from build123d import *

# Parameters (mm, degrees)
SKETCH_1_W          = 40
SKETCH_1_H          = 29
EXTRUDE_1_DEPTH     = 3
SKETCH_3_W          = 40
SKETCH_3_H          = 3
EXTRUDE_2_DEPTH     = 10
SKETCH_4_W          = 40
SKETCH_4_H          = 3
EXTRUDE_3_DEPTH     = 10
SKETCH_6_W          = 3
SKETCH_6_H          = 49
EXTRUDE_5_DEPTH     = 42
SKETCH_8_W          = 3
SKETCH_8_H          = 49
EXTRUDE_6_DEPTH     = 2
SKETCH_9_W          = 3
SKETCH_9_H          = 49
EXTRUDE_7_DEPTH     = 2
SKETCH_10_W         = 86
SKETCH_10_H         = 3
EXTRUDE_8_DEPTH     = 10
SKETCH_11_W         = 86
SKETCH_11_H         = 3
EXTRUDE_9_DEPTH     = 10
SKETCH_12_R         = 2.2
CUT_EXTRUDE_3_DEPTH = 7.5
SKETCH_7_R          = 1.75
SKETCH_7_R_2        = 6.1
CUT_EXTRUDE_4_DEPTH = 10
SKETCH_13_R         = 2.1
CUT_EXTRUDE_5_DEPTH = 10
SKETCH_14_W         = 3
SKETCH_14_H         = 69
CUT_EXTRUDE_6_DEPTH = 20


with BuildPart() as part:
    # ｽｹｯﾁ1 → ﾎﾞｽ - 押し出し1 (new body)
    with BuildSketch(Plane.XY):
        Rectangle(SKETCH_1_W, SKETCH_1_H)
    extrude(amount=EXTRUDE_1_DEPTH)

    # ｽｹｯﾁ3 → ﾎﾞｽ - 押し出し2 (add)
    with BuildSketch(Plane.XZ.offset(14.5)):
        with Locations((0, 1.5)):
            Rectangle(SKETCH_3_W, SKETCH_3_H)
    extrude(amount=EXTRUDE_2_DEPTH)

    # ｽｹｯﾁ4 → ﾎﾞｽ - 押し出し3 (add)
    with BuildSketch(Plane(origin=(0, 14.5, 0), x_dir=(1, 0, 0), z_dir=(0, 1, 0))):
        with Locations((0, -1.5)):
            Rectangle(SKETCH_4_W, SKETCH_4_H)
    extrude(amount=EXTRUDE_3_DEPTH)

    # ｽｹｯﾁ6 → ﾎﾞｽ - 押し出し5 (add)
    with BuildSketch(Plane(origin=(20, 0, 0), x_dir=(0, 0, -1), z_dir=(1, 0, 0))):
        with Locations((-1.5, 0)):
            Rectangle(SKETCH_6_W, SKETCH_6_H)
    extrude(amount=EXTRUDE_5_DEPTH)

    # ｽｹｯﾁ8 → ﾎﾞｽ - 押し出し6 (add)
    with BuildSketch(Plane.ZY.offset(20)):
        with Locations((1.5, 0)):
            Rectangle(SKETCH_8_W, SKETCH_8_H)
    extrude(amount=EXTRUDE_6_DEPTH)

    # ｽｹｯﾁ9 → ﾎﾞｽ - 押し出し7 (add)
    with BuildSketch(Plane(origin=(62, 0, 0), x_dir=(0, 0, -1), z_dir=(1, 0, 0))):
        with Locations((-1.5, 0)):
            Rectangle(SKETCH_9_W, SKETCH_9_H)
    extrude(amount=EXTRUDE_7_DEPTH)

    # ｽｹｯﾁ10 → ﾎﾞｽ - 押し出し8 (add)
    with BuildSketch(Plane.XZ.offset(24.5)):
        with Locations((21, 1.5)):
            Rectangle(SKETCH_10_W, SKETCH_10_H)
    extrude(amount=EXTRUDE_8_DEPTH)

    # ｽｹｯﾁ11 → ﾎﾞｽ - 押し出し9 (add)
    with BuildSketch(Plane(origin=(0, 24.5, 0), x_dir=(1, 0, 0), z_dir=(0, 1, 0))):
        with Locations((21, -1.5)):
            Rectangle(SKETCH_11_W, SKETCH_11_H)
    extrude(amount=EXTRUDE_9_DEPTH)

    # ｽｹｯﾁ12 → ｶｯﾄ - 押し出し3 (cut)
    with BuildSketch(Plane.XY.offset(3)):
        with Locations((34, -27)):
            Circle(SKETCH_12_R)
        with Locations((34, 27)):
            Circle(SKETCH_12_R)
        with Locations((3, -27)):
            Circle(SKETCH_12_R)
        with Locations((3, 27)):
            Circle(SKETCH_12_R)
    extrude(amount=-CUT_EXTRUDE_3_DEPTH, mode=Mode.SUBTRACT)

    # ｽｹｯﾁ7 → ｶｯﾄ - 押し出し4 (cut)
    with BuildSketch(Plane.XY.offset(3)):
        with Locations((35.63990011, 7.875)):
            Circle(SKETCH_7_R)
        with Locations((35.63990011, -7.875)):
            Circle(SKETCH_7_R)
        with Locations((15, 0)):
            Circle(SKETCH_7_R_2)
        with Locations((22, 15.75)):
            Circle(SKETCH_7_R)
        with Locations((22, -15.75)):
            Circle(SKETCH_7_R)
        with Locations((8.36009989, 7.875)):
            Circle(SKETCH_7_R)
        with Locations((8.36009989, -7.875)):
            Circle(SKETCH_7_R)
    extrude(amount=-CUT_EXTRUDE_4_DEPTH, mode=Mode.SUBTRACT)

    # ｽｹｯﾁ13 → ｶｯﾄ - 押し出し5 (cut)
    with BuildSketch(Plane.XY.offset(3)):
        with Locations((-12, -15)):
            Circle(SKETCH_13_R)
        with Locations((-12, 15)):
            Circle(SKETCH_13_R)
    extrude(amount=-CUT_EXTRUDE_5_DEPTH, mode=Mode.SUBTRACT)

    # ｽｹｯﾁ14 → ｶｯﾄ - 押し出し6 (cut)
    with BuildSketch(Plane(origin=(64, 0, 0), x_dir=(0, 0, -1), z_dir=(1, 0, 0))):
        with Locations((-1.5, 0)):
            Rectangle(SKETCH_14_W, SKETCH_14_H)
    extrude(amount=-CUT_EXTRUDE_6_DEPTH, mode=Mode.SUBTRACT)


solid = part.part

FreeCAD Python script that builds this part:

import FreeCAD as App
import Part
import Sketcher

V = App.Vector
Q = App.Units.Quantity

doc = App.newDocument("Part")
body = doc.addObject("PartDesign::Body", "Body")

# Sketch on XY plane
sketch1 = doc.addObject("Sketcher::SketchObject", "Sketch")
body.addObject(sketch1)
sketch1.AttachmentSupport = (doc.XY_Plane, [""])
sketch1.MapMode = "FlatFace"
sketch1.addGeometry([
    Part.LineSegment(V(-20, 14, 0), V(-20, -14, 0)),
    Part.LineSegment(V(-20, -14, 0), V(20, -14, 0)),
    Part.LineSegment(V(20, -14, 0), V(20, 14, 0)),
    Part.LineSegment(V(20, 14, 0), V(-20, 14, 0)),
], False)
sketch1.addConstraint([
    Sketcher.Constraint("Coincident", 0, 2, 1, 1),
    Sketcher.Constraint("Coincident", 1, 2, 2, 1),
    Sketcher.Constraint("Coincident", 2, 2, 3, 1),
    Sketcher.Constraint("Coincident", 3, 2, 0, 1),
    Sketcher.Constraint("Vertical", 0),
    Sketcher.Constraint("Horizontal", 1),
    Sketcher.Constraint("Vertical", 2),
    Sketcher.Constraint("Horizontal", 3),
    Sketcher.Constraint("Symmetric", 0, 2, 2, 2, -1, 1),
    Sketcher.Constraint("DistanceX", 1, 1, 1, 2, Q("40 mm")),
    Sketcher.Constraint("DistanceY", 0, 2, 0, 1, Q("29 mm")),
])
pad1 = doc.addObject("PartDesign::Pad", "Pad")
body.addObject(pad1)
pad1.Profile = sketch1
pad1.Length = 3

# Sketch on XZ plane
sketch2 = doc.addObject("Sketcher::SketchObject", "Sketch001")
body.addObject(sketch2)
sketch2.AttachmentSupport = (doc.XZ_Plane, [""])
sketch2.MapMode = "FlatFace"
sketch2.AttachmentOffset = App.Placement(V(0, 0, 14.5), App.Rotation())
sketch2.addGeometry([
    Part.LineSegment(V(-20, 3, 0), V(-20, 0, 0)),
    Part.LineSegment(V(-20, 0, 0), V(20, 0, 0)),
    Part.LineSegment(V(20, 0, 0), V(20, 3, 0)),
    Part.LineSegment(V(20, 3, 0), V(-20, 3, 0)),
], False)
sketch2.addConstraint([
    Sketcher.Constraint("Coincident", 0, 2, 1, 1),
    Sketcher.Constraint("Coincident", 1, 2, 2, 1),
    Sketcher.Constraint("Coincident", 2, 2, 3, 1),
    Sketcher.Constraint("Coincident", 3, 2, 0, 1),
    Sketcher.Constraint("Vertical", 0),
    Sketcher.Constraint("Horizontal", 1),
    Sketcher.Constraint("Vertical", 2),
    Sketcher.Constraint("Horizontal", 3),
    Sketcher.Constraint("Symmetric", 0, 2, 1, 2, -1, 1),
    Sketcher.Constraint("DistanceX", 1, 1, 1, 2, Q("40 mm")),
    Sketcher.Constraint("DistanceY", 0, 2, 0, 1, Q("3 mm")),
])
pad2 = doc.addObject("PartDesign::Pad", "Pad001")
body.addObject(pad2)
pad2.Profile = sketch2
pad2.Length = 10

# Sketch on XZ plane
sketch3 = doc.addObject("Sketcher::SketchObject", "Sketch002")
body.addObject(sketch3)
sketch3.AttachmentSupport = (doc.XZ_Plane, [""])
sketch3.MapMode = "FlatFace"
sketch3.AttachmentOffset = App.Placement(V(0, 0, -14.5), App.Rotation())
sketch3.addGeometry([
    Part.LineSegment(V(-20, 0, 0), V(-20, 3, 0)),
    Part.LineSegment(V(-20, 3, 0), V(20, 3, 0)),
    Part.LineSegment(V(20, 3, 0), V(20, 0, 0)),
    Part.LineSegment(V(20, 0, 0), V(-20, 0, 0)),
], False)
sketch3.addConstraint([
    Sketcher.Constraint("Coincident", 0, 2, 1, 1),
    Sketcher.Constraint("Coincident", 1, 2, 2, 1),
    Sketcher.Constraint("Coincident", 2, 2, 3, 1),
    Sketcher.Constraint("Coincident", 3, 2, 0, 1),
    Sketcher.Constraint("Vertical", 0),
    Sketcher.Constraint("Horizontal", 1),
    Sketcher.Constraint("Vertical", 2),
    Sketcher.Constraint("Horizontal", 3),
    Sketcher.Constraint("Symmetric", 2, 2, 3, 2, -1, 1),
    Sketcher.Constraint("DistanceX", 1, 1, 1, 2, Q("40 mm")),
    Sketcher.Constraint("DistanceY", 0, 1, 0, 2, Q("3 mm")),
])
pad3 = doc.addObject("PartDesign::Pad", "Pad002")
body.addObject(pad3)
pad3.Profile = sketch3
pad3.Length = 10
pad3.Reversed = True

# Sketch on YZ plane
sketch4 = doc.addObject("Sketcher::SketchObject", "Sketch003")
body.addObject(sketch4)
sketch4.AttachmentSupport = (doc.YZ_Plane, [""])
sketch4.MapMode = "FlatFace"
sketch4.AttachmentOffset = App.Placement(V(0, 0, 20), App.Rotation())
sketch4.addGeometry([
    Part.LineSegment(V(24.5, 3, 0), V(-24.5, 3, 0)),
    Part.LineSegment(V(-24.5, 3, 0), V(-24.5, 0, 0)),
    Part.LineSegment(V(-24.5, 0, 0), V(24.5, 0, 0)),
    Part.LineSegment(V(24.5, 0, 0), V(24.5, 3, 0)),
], False)
sketch4.addConstraint([
    Sketcher.Constraint("Coincident", 0, 2, 1, 1),
    Sketcher.Constraint("Coincident", 1, 2, 2, 1),
    Sketcher.Constraint("Coincident", 2, 2, 3, 1),
    Sketcher.Constraint("Coincident", 3, 2, 0, 1),
    Sketcher.Constraint("Horizontal", 0),
    Sketcher.Constraint("Vertical", 1),
    Sketcher.Constraint("Horizontal", 2),
    Sketcher.Constraint("Vertical", 3),
    Sketcher.Constraint("Symmetric", 1, 2, 2, 2, -1, 1),
    Sketcher.Constraint("DistanceX", 0, 2, 0, 1, Q("49 mm")),
    Sketcher.Constraint("DistanceY", 1, 2, 1, 1, Q("3 mm")),
])
pad4 = doc.addObject("PartDesign::Pad", "Pad003")
body.addObject(pad4)
pad4.Profile = sketch4
pad4.Length = 42

# Sketch on YZ plane
sketch5 = doc.addObject("Sketcher::SketchObject", "Sketch004")
body.addObject(sketch5)
sketch5.AttachmentSupport = (doc.YZ_Plane, [""])
sketch5.MapMode = "FlatFace"
sketch5.AttachmentOffset = App.Placement(V(0, 0, -20), App.Rotation())
sketch5.addGeometry([
    Part.LineSegment(V(24.5, 0, 0), V(-24.5, 0, 0)),
    Part.LineSegment(V(-24.5, 0, 0), V(-24.5, 3, 0)),
    Part.LineSegment(V(-24.5, 3, 0), V(24.5, 3, 0)),
    Part.LineSegment(V(24.5, 3, 0), V(24.5, 0, 0)),
], False)
sketch5.addConstraint([
    Sketcher.Constraint("Coincident", 0, 2, 1, 1),
    Sketcher.Constraint("Coincident", 1, 2, 2, 1),
    Sketcher.Constraint("Coincident", 2, 2, 3, 1),
    Sketcher.Constraint("Coincident", 3, 2, 0, 1),
    Sketcher.Constraint("Horizontal", 0),
    Sketcher.Constraint("Vertical", 1),
    Sketcher.Constraint("Horizontal", 2),
    Sketcher.Constraint("Vertical", 3),
    Sketcher.Constraint("Symmetric", 0, 2, 3, 2, -1, 1),
    Sketcher.Constraint("DistanceX", 0, 2, 0, 1, Q("49 mm")),
    Sketcher.Constraint("DistanceY", 1, 1, 1, 2, Q("3 mm")),
])
pad5 = doc.addObject("PartDesign::Pad", "Pad004")
body.addObject(pad5)
pad5.Profile = sketch5
pad5.Length = 2
pad5.Reversed = True

# Sketch on YZ plane
sketch6 = doc.addObject("Sketcher::SketchObject", "Sketch005")
body.addObject(sketch6)
sketch6.AttachmentSupport = (doc.YZ_Plane, [""])
sketch6.MapMode = "FlatFace"
sketch6.AttachmentOffset = App.Placement(V(0, 0, 62), App.Rotation())
sketch6.addGeometry([
    Part.LineSegment(V(24.5, 3, 0), V(-24.5, 3, 0)),
    Part.LineSegment(V(-24.5, 3, 0), V(-24.5, 0, 0)),
    Part.LineSegment(V(-24.5, 0, 0), V(24.5, 0, 0)),
    Part.LineSegment(V(24.5, 0, 0), V(24.5, 3, 0)),
], False)
sketch6.addConstraint([
    Sketcher.Constraint("Coincident", 0, 2, 1, 1),
    Sketcher.Constraint("Coincident", 1, 2, 2, 1),
    Sketcher.Constraint("Coincident", 2, 2, 3, 1),
    Sketcher.Constraint("Coincident", 3, 2, 0, 1),
    Sketcher.Constraint("Horizontal", 0),
    Sketcher.Constraint("Vertical", 1),
    Sketcher.Constraint("Horizontal", 2),
    Sketcher.Constraint("Vertical", 3),
    Sketcher.Constraint("Symmetric", 1, 2, 2, 2, -1, 1),
    Sketcher.Constraint("DistanceX", 0, 2, 0, 1, Q("49 mm")),
    Sketcher.Constraint("DistanceY", 1, 2, 1, 1, Q("3 mm")),
])
pad6 = doc.addObject("PartDesign::Pad", "Pad005")
body.addObject(pad6)
pad6.Profile = sketch6
pad6.Length = 2

# Sketch on XZ plane
sketch7 = doc.addObject("Sketcher::SketchObject", "Sketch006")
body.addObject(sketch7)
sketch7.AttachmentSupport = (doc.XZ_Plane, [""])
sketch7.MapMode = "FlatFace"
sketch7.AttachmentOffset = App.Placement(V(0, 0, 24.5), App.Rotation())
sketch7.addGeometry([
    Part.LineSegment(V(-22, 3, 0), V(-22, 0, 0)),
    Part.LineSegment(V(-22, 0, 0), V(64, 0, 0)),
    Part.LineSegment(V(64, 0, 0), V(64, 3, 0)),
    Part.LineSegment(V(64, 3, 0), V(-22, 3, 0)),
], False)
sketch7.addConstraint([
    Sketcher.Constraint("Coincident", 0, 2, 1, 1),
    Sketcher.Constraint("Coincident", 1, 2, 2, 1),
    Sketcher.Constraint("Coincident", 2, 2, 3, 1),
    Sketcher.Constraint("Coincident", 3, 2, 0, 1),
    Sketcher.Constraint("Vertical", 0),
    Sketcher.Constraint("Horizontal", 1),
    Sketcher.Constraint("Vertical", 2),
    Sketcher.Constraint("Horizontal", 3),
    Sketcher.Constraint("PointOnObject", 0, 2, -1),
    Sketcher.Constraint("DistanceX", 1, 1, 1, 2, Q("86 mm")),
    Sketcher.Constraint("DistanceY", 0, 2, 0, 1, Q("3 mm")),
    Sketcher.Constraint("DistanceX", 0, 2, -1, 1, Q("22 mm")),
])
pad7 = doc.addObject("PartDesign::Pad", "Pad006")
body.addObject(pad7)
pad7.Profile = sketch7
pad7.Length = 10

# Sketch on XZ plane
sketch8 = doc.addObject("Sketcher::SketchObject", "Sketch007")
body.addObject(sketch8)
sketch8.AttachmentSupport = (doc.XZ_Plane, [""])
sketch8.MapMode = "FlatFace"
sketch8.AttachmentOffset = App.Placement(V(0, 0, -24.5), App.Rotation())
sketch8.addGeometry([
    Part.LineSegment(V(-22, 0, 0), V(-22, 3, 0)),
    Part.LineSegment(V(-22, 3, 0), V(64, 3, 0)),
    Part.LineSegment(V(64, 3, 0), V(64, 0, 0)),
    Part.LineSegment(V(64, 0, 0), V(-22, 0, 0)),
], False)
sketch8.addConstraint([
    Sketcher.Constraint("Coincident", 0, 2, 1, 1),
    Sketcher.Constraint("Coincident", 1, 2, 2, 1),
    Sketcher.Constraint("Coincident", 2, 2, 3, 1),
    Sketcher.Constraint("Coincident", 3, 2, 0, 1),
    Sketcher.Constraint("Vertical", 0),
    Sketcher.Constraint("Horizontal", 1),
    Sketcher.Constraint("Vertical", 2),
    Sketcher.Constraint("Horizontal", 3),
    Sketcher.Constraint("PointOnObject", 2, 2, -1),
    Sketcher.Constraint("DistanceX", 1, 1, 1, 2, Q("86 mm")),
    Sketcher.Constraint("DistanceY", 0, 1, 0, 2, Q("3 mm")),
    Sketcher.Constraint("DistanceX", 0, 2, -1, 1, Q("22 mm")),
])
pad8 = doc.addObject("PartDesign::Pad", "Pad007")
body.addObject(pad8)
pad8.Profile = sketch8
pad8.Length = 10
pad8.Reversed = True

# Sketch on XY plane
sketch9 = doc.addObject("Sketcher::SketchObject", "Sketch008")
body.addObject(sketch9)
sketch9.AttachmentSupport = (doc.XY_Plane, [""])
sketch9.MapMode = "FlatFace"
sketch9.AttachmentOffset = App.Placement(V(0, 0, 3), App.Rotation())
sketch9.addGeometry([
    Part.Circle(V(34, -27, 0), V(0, 0, 1), 2.2),
    Part.Circle(V(34, 27, 0), V(0, 0, 1), 2.2),
    Part.Circle(V(3, -27, 0), V(0, 0, 1), 2.2),
    Part.Circle(V(3, 27, 0), V(0, 0, 1), 2.2),
], False)
sketch9.addConstraint([
    Sketcher.Constraint("Equal", 0, 1),
    Sketcher.Constraint("Equal", 1, 2),
    Sketcher.Constraint("Equal", 2, 3),
    Sketcher.Constraint("Symmetric", 0, 3, 1, 3, -1),
    Sketcher.Constraint("Symmetric", 2, 3, 3, 3, -1),
    Sketcher.Constraint("Horizontal", 0, 3, 2, 3),
    Sketcher.Constraint("Diameter", 0, Q("4.4 mm")),
    Sketcher.Constraint("DistanceX", -1, 1, 0, 3, Q("34 mm")),
    Sketcher.Constraint("DistanceY", 0, 3, -1, 1, Q("27 mm")),
    Sketcher.Constraint("DistanceX", -1, 1, 2, 3, Q("3 mm")),
])
pocket1 = doc.addObject("PartDesign::Pocket", "Pocket")
body.addObject(pocket1)
pocket1.Profile = sketch9
pocket1.Length = 7.5

# Sketch on XY plane
sketch10 = doc.addObject("Sketcher::SketchObject", "Sketch009")
body.addObject(sketch10)
sketch10.AttachmentSupport = (doc.XY_Plane, [""])
sketch10.MapMode = "FlatFace"
sketch10.AttachmentOffset = App.Placement(V(0, 0, 3), App.Rotation())
sketch10.addGeometry([
    Part.Circle(V(35.6, 7.9, 0), V(0, 0, 1), 1.8),  # 0
    Part.Circle(V(35.6, -7.9, 0), V(0, 0, 1), 1.8),  # 1
    Part.Circle(V(15, 0, 0), V(0, 0, 1), 6.1),  # 2
    Part.Circle(V(22, 15.8, 0), V(0, 0, 1), 1.8),  # 3
    Part.Circle(V(22, -15.8, 0), V(0, 0, 1), 1.8),  # 4
    Part.Circle(V(8.4, 7.9, 0), V(0, 0, 1), 1.8),  # 5
    Part.Circle(V(8.4, -7.9, 0), V(0, 0, 1), 1.8),  # 6
], False)
sketch10.addConstraint([
    Sketcher.Constraint("Equal", 0, 1),
    Sketcher.Constraint("Equal", 1, 3),
    Sketcher.Constraint("Equal", 3, 4),
    Sketcher.Constraint("Equal", 4, 5),
    Sketcher.Constraint("Equal", 5, 6),
    Sketcher.Constraint("Symmetric", 0, 3, 1, 3, -1),
    Sketcher.Constraint("Symmetric", 3, 3, 4, 3, -1),
    Sketcher.Constraint("Symmetric", 5, 3, 6, 3, -1),
    Sketcher.Constraint("PointOnObject", 2, 3, -1),
    Sketcher.Constraint("Horizontal", 0, 3, 5, 3),
    Sketcher.Constraint("Diameter", 0, Q("3.5 mm")),
    Sketcher.Constraint("Diameter", 2, Q("12.2 mm")),
    Sketcher.Constraint("DistanceX", -1, 1, 2, 3, Q("15 mm")),
    Sketcher.Constraint("DistanceX", -1, 1, 3, 3, Q("22 mm")),
    Sketcher.Constraint("DistanceY", 4, 3, 3, 3, Q("31.5 mm")),
    Sketcher.Constraint("DistanceY", 1, 3, 0, 3, Q("15.75 mm")),
    Sketcher.Constraint("DistanceX", -1, 1, 0, 3, Q("35.6399 mm")),
    Sketcher.Constraint("DistanceX", -1, 1, 5, 3, Q("8.3601 mm")),
])
pocket2 = doc.addObject("PartDesign::Pocket", "Pocket001")
body.addObject(pocket2)
pocket2.Profile = sketch10
pocket2.Length = 10

# Sketch on XY plane
sketch11 = doc.addObject("Sketcher::SketchObject", "Sketch010")
body.addObject(sketch11)
sketch11.AttachmentSupport = (doc.XY_Plane, [""])
sketch11.MapMode = "FlatFace"
sketch11.AttachmentOffset = App.Placement(V(0, 0, 3), App.Rotation())
sketch11.addGeometry([
    Part.Circle(V(-12, -15, 0), V(0, 0, 1), 2.1),
    Part.Circle(V(-12, 15, 0), V(0, 0, 1), 2.1),
], False)
sketch11.addConstraint([
    Sketcher.Constraint("Equal", 0, 1),
    Sketcher.Constraint("Symmetric", 0, 3, 1, 3, -1),
    Sketcher.Constraint("Diameter", 0, Q("4.2 mm")),
    Sketcher.Constraint("DistanceX", 0, 3, -1, 1, Q("12 mm")),
    Sketcher.Constraint("DistanceY", 0, 3, -1, 1, Q("15 mm")),
])
pocket3 = doc.addObject("PartDesign::Pocket", "Pocket002")
body.addObject(pocket3)
pocket3.Profile = sketch11
pocket3.Length = 10

# Sketch on YZ plane
sketch12 = doc.addObject("Sketcher::SketchObject", "Sketch011")
body.addObject(sketch12)
sketch12.AttachmentSupport = (doc.YZ_Plane, [""])
sketch12.MapMode = "FlatFace"
sketch12.AttachmentOffset = App.Placement(V(0, 0, 64), App.Rotation())
sketch12.addGeometry([
    Part.LineSegment(V(34.5, 3, 0), V(-34.5, 3, 0)),
    Part.LineSegment(V(-34.5, 3, 0), V(-34.5, 0, 0)),
    Part.LineSegment(V(-34.5, 0, 0), V(34.5, 0, 0)),
    Part.LineSegment(V(34.5, 0, 0), V(34.5, 3, 0)),
], False)
sketch12.addConstraint([
    Sketcher.Constraint("Coincident", 0, 2, 1, 1),
    Sketcher.Constraint("Coincident", 1, 2, 2, 1),
    Sketcher.Constraint("Coincident", 2, 2, 3, 1),
    Sketcher.Constraint("Coincident", 3, 2, 0, 1),
    Sketcher.Constraint("Horizontal", 0),
    Sketcher.Constraint("Vertical", 1),
    Sketcher.Constraint("Horizontal", 2),
    Sketcher.Constraint("Vertical", 3),
    Sketcher.Constraint("Symmetric", 1, 2, 2, 2, -1, 1),
    Sketcher.Constraint("DistanceX", 0, 2, 0, 1, Q("69 mm")),
    Sketcher.Constraint("DistanceY", 1, 2, 1, 1, Q("3 mm")),
])
pocket4 = doc.addObject("PartDesign::Pocket", "Pocket003")
body.addObject(pocket4)
pocket4.Profile = sketch12
pocket4.Length = 20

doc.recompute()
